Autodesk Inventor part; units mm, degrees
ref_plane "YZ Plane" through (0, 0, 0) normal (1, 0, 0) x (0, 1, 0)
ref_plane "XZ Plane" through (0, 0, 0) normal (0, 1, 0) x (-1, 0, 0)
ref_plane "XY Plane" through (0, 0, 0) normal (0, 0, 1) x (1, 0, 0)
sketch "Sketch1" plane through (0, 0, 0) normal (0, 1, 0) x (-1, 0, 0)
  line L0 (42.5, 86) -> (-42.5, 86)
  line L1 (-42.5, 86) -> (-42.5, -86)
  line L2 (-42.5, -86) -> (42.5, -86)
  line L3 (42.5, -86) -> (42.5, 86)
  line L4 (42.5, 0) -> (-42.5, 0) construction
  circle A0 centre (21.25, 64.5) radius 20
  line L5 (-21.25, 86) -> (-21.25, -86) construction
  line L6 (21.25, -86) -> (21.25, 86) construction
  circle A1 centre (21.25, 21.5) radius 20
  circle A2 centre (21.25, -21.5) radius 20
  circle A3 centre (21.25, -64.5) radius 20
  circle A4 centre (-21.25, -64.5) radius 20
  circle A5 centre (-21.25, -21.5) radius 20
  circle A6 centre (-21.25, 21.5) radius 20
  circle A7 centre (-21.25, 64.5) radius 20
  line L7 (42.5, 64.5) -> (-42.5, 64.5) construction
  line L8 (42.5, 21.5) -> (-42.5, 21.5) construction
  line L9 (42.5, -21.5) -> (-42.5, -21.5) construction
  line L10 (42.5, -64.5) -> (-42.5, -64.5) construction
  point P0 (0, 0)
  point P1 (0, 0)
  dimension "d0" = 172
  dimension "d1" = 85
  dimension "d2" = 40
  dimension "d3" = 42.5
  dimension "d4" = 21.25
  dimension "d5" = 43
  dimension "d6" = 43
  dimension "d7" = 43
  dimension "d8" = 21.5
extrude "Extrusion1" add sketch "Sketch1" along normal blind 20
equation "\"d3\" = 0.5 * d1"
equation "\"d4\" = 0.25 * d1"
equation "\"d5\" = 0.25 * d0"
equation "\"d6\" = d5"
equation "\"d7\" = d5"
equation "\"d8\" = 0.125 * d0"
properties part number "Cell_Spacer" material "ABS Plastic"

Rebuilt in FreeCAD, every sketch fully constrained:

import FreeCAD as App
import Part
import Sketcher

doc = App.newDocument("Part")
body = doc.addObject("PartDesign::Body", "Body")

# Sketch on XZ plane
sketch1 = body.newObject("Sketcher::SketchObject", "Sketch")
sketch1.AttachmentSupport = (doc.getObject("XZ_Plane"), [""])
sketch1.MapMode = "FlatFace"
sketch1.addGeometry([
    Part.LineSegment(App.Vector(-42, -86, 0), App.Vector(-42, 86, 0)),  # 0
    Part.LineSegment(App.Vector(-42, 86, 0), App.Vector(42, 86, 0)),  # 1
    Part.LineSegment(App.Vector(42, 86, 0), App.Vector(42, -86, 0)),  # 2
    Part.LineSegment(App.Vector(42, -86, 0), App.Vector(-42, -86, 0)),  # 3
    Part.Circle(App.Vector(21, -64, 0), App.Vector(0, 0, 1), 20),  # 4
    Part.Circle(App.Vector(21, -22, 0), App.Vector(0, 0, 1), 20),  # 5
    Part.Circle(App.Vector(-21, -64, 0), App.Vector(0, 0, 1), 20),  # 6
    Part.Circle(App.Vector(-21, -22, 0), App.Vector(0, 0, 1), 20),  # 7
    Part.Circle(App.Vector(21, 22, 0), App.Vector(0, 0, 1), 20),  # 8
    Part.Circle(App.Vector(21, 64, 0), App.Vector(0, 0, 1), 20),  # 9
    Part.Circle(App.Vector(-21, 22, 0), App.Vector(0, 0, 1), 20),  # 10
    Part.Circle(App.Vector(-21, 64, 0), App.Vector(0, 0, 1), 20),  # 11
], False)
sketch1.addConstraint([
    Sketcher.Constraint("Coincident", 0, 2, 1, 1),
    Sketcher.Constraint("Coincident", 1, 2, 2, 1),
    Sketcher.Constraint("Coincident", 2, 2, 3, 1),
    Sketcher.Constraint("Coincident", 3, 2, 0, 1),
    Sketcher.Constraint("Vertical", 0),
    Sketcher.Constraint("Horizontal", 1),
    Sketcher.Constraint("Vertical", 2),
    Sketcher.Constraint("Horizontal", 3),
    Sketcher.Constraint("Equal", 4, 5),
    Sketcher.Constraint("Equal", 5, 6),
    Sketcher.Constraint("Equal", 6, 7),
    Sketcher.Constraint("Equal", 7, 8),
    Sketcher.Constraint("Equal", 8, 9),
    Sketcher.Constraint("Equal", 9, 10),
    Sketcher.Constraint("Equal", 10, 11),
    Sketcher.Constraint("Symmetric", 7, 3, 8, 3, -1, 1),
    Sketcher.Constraint("Symmetric", 6, 3, 9, 3, -1, 1),
    Sketcher.Constraint("Symmetric", 5, 3, 10, 3, -1, 1),
    Sketcher.Constraint("Symmetric", 4, 3, 11, 3, -1, 1),
    Sketcher.Constraint("Symmetric", 0, 2, 2, 2, -1, 1),
    Sketcher.Constraint("Symmetric", 4, 3, 6, 3, -2),
    Sketcher.Constraint("Symmetric", 5, 3, 7, 3, -2),
    Sketcher.Constraint("Vertical", 4, 3, 5, 3),
    Sketcher.Constraint("Diameter", 4, 40.0),
    Sketcher.Constraint("DistanceX", 1, 1, 1, 2, 85.0),
    Sketcher.Constraint("DistanceY", 0, 1, 0, 2, 172.0),
    Sketcher.Constraint("DistanceY", 4, 3, 5, 3, 43.0),
    Sketcher.Constraint("DistanceY", 5, 3, 8, 3, 43.0),
    Sketcher.Constraint("DistanceX", 6, 3, 4, 3, 42.5),
])
pad1 = body.newObject("PartDesign::Pad", "Pad")
pad1.Profile = sketch1
pad1.Length = 20
pad1.Reversed = True

doc.recompute()
